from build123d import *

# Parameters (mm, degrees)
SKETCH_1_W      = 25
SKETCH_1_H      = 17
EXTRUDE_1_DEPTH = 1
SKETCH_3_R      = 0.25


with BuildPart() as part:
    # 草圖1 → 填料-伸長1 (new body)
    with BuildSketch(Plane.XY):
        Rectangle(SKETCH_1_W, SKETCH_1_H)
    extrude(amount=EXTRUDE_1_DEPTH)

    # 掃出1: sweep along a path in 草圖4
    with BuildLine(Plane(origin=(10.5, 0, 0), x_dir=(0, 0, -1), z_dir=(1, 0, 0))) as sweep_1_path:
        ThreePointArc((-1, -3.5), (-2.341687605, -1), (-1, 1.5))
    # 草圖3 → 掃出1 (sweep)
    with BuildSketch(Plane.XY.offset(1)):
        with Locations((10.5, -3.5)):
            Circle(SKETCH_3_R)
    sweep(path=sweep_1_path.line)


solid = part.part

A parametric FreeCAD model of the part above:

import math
import FreeCAD as App
import Part
import Sketcher
from FreeCAD import Vector


def add_polygon(sketch, points):
    """Adds a closed chain of lines whose ends are joined by coincident constraints."""
    first, n = sketch.GeometryCount, len(points)
    for a, b in zip(points, points[1:] + points[:1]):
        sketch.addGeometry(Part.LineSegment(App.Vector(*a, 0), App.Vector(*b, 0)), False)
    for i in range(n):
        sketch.addConstraint(Sketcher.Constraint("Coincident", first + i, 2, first + (i + 1) % n, 1))

doc = App.newDocument("Part")
body = doc.addObject("PartDesign::Body", "Body")

# Sketch on XY plane
sketch1 = body.newObject("Sketcher::SketchObject", "Sketch")
sketch1.AttachmentSupport = (doc.getObject("XY_Plane"), [""])
sketch1.MapMode = "FlatFace"
add_polygon(sketch1, [(-12, 8), (-12, -8), (12, -8), (12, 8)])  # lines 0-3
sketch1.addConstraint([
    Sketcher.Constraint("Vertical", 0),
    Sketcher.Constraint("Horizontal", 1),
    Sketcher.Constraint("Vertical", 2),
    Sketcher.Constraint("Horizontal", 3),
    Sketcher.Constraint("Symmetric", 0, 2, 2, 2, -1, 1),
    Sketcher.Constraint("DistanceX", 1, 1, 1, 2, 25.0),
    Sketcher.Constraint("DistanceY", 0, 2, 0, 1, 17.0),
])
pad1 = body.newObject("PartDesign::Pad", "Pad")
pad1.Profile = sketch1
pad1.Length = 1

# Sketch on XY plane
sketch2 = body.newObject("Sketcher::SketchObject", "Sketch001")
sketch2.AttachmentSupport = (doc.getObject("XY_Plane"), [""])
sketch2.MapMode = "FlatFace"
sketch2.AttachmentOffset = App.Placement(Vector(0, 0, 1), App.Rotation())
sketch2.addGeometry(Part.Circle(Vector(10.5, -3.5, 0), Vector(0, 0, 1), 0.25), False)
sketch2.addConstraint([
    Sketcher.Constraint("Diameter", 0, 0.5),
    Sketcher.Constraint("DistanceX", -1, 1, 0, 3, 10.5),
    Sketcher.Constraint("DistanceY", 0, 3, -1, 1, 3.5),
])

# Sketch on YZ plane
sketch3 = body.newObject("Sketcher::SketchObject", "Sketch002")
sketch3.AttachmentSupport = (doc.getObject("YZ_Plane"), [""])
sketch3.MapMode = "FlatFace"
sketch3.AttachmentOffset = App.Placement(Vector(0, 0, 10.5), App.Rotation())
sketch3.addGeometry(Part.ArcOfCircle(Part.Circle(Vector(-1, -0.7, 0), Vector(0, 0, 1), 3), math.radians(34), math.radians(146)), False)
sketch3.addConstraint([
    Sketcher.Constraint("Radius", 0, 3.0),
    Sketcher.Constraint("DistanceX", 0, 3, -1, 1, 1.0),
    Sketcher.Constraint("DistanceY", -1, 1, 0, 1, 1.0),
    Sketcher.Constraint("DistanceY", -1, 1, 0, 2, 1.0),
    Sketcher.Constraint("DistanceX", 0, 2, 0, 1, 5.0),
])
doc.recompute()

additivepipe = body.newObject("PartDesign::AdditivePipe", "AdditivePipe")
additivepipe.Profile = sketch2
additivepipe.Spine = (sketch3, ["Edge1"])

doc.recompute()
